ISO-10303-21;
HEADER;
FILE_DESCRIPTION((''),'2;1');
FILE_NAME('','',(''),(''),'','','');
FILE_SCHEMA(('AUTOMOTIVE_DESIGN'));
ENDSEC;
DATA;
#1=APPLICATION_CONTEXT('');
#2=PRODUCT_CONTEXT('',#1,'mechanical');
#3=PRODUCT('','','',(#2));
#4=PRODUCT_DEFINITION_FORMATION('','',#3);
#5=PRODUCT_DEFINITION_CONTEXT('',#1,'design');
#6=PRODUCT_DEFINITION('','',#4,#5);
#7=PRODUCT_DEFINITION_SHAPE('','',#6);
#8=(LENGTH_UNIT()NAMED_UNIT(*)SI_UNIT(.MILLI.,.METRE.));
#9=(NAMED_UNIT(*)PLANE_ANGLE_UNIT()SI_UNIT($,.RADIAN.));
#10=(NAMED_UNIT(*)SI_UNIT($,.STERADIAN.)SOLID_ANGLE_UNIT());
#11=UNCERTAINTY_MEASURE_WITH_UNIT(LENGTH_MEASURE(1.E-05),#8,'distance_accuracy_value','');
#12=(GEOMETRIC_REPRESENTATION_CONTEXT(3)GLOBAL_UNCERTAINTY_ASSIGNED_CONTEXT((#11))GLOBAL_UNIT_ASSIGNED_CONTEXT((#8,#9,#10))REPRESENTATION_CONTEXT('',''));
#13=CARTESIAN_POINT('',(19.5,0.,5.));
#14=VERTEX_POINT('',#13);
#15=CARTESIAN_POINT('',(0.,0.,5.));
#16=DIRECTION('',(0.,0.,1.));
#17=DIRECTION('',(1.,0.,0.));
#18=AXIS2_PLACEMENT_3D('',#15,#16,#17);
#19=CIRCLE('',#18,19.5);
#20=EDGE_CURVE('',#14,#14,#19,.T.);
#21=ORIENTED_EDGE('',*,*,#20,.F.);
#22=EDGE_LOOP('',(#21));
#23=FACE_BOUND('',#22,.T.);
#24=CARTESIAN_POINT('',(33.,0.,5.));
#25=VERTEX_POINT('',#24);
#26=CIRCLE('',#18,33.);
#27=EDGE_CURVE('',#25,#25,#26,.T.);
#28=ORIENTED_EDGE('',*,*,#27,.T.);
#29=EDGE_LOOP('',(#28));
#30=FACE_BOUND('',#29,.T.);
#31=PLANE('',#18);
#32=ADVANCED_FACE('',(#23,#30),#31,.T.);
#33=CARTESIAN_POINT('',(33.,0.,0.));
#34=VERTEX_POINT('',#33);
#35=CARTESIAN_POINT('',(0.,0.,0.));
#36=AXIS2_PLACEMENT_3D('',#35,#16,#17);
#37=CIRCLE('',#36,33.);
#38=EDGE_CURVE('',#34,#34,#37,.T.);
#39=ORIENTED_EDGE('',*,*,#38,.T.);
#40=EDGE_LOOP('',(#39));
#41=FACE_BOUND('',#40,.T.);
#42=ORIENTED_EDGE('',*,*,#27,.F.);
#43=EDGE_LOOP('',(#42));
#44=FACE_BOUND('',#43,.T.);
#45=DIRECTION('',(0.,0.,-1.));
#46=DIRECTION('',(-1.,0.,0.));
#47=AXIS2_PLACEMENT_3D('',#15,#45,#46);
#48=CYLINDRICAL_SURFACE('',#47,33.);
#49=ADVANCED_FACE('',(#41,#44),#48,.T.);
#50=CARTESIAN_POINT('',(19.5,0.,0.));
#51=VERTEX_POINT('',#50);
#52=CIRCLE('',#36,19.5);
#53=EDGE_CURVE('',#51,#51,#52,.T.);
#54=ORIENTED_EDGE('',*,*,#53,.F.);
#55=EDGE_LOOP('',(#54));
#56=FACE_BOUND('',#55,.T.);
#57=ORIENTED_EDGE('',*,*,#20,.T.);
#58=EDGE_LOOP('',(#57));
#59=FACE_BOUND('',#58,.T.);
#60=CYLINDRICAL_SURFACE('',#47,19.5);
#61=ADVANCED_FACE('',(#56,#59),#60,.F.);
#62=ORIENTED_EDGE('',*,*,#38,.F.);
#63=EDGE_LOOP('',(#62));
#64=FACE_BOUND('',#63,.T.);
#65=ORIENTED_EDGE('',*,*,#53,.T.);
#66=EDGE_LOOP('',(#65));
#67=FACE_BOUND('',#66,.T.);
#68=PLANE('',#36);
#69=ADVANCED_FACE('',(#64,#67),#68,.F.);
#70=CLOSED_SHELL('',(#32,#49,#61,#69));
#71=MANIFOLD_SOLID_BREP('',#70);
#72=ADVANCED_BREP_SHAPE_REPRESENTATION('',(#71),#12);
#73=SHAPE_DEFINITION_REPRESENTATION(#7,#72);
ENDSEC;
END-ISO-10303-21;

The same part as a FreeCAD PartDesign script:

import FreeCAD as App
import Part
import Sketcher

V = App.Vector
Q = App.Units.Quantity

doc = App.newDocument("Part")
body = doc.addObject("PartDesign::Body", "Body")

sketch1 = body.newObject("Sketcher::SketchObject", "Sketch")
sketch1.AttachmentSupport = (doc.getObject("XY_Plane"), [""])
sketch1.MapMode = "FlatFace"
sketch1.addGeometry([
    Part.Circle(V(0, 0, 0), V(0, 0, 1), 33),
    Part.Circle(V(0, 0, 0), V(0, 0, 1), 20),
], False)
sketch1.addConstraint([
    Sketcher.Constraint("Coincident", 0, 3, -1, 1),
    Sketcher.Constraint("Coincident", 1, 3, -1, 1),
    Sketcher.Constraint("Diameter", 0, Q("66 mm")),
    Sketcher.Constraint("Diameter", 1, Q("39 mm")),
])
pad1 = body.newObject("PartDesign::Pad", "Pad")
pad1.Profile = sketch1
pad1.Length = 5

doc.recompute()
